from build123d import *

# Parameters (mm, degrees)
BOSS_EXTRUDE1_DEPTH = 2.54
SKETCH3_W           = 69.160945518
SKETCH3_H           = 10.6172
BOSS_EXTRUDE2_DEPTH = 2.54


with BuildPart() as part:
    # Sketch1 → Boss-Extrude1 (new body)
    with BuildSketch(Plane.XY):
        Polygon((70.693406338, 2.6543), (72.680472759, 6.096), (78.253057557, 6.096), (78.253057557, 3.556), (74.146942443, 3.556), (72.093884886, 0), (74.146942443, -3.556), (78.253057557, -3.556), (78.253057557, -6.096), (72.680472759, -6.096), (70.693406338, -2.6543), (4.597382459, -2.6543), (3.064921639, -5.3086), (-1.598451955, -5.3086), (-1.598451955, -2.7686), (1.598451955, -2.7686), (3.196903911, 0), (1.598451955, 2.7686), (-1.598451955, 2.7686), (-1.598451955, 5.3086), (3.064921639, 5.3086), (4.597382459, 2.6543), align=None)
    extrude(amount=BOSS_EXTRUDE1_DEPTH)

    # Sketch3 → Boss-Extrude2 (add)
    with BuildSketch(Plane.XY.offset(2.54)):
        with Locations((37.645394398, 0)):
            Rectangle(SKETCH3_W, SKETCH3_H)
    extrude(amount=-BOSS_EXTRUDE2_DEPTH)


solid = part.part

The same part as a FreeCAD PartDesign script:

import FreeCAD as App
import Part
import Sketcher

V = App.Vector
Q = App.Units.Quantity

doc = App.newDocument("Part")
body = doc.addObject("PartDesign::Body", "Body")

sketch1 = body.newObject("Sketcher::SketchObject", "Sketch")
sketch1.AttachmentSupport = (doc.getObject("XY_Plane"), [""])
sketch1.MapMode = "FlatFace"
sketch1.addGeometry([
    Part.LineSegment(V(72.7, 6.1, 0), V(70.7, 2.7, 0)),
    Part.LineSegment(V(70.7, 2.7, 0), V(4.6, 2.7, 0)),
    Part.LineSegment(V(4.6, 2.7, 0), V(3.1, 5.3, 0)),
    Part.LineSegment(V(3.1, 5.3, 0), V(-1.6, 5.3, 0)),
    Part.LineSegment(V(-1.6, 5.3, 0), V(-1.6, 2.8, 0)),
    Part.LineSegment(V(-1.6, 2.8, 0), V(1.6, 2.8, 0)),
    Part.LineSegment(V(1.6, 2.8, 0), V(3.2, 0, 0)),
    Part.LineSegment(V(3.2, 0, 0), V(1.6, -2.8, 0)),
    Part.LineSegment(V(1.6, -2.8, 0), V(-1.6, -2.8, 0)),
    Part.LineSegment(V(-1.6, -2.8, 0), V(-1.6, -5.3, 0)),
    Part.LineSegment(V(-1.6, -5.3, 0), V(3.1, -5.3, 0)),
    Part.LineSegment(V(3.1, -5.3, 0), V(4.6, -2.7, 0)),
    Part.LineSegment(V(4.6, -2.7, 0), V(70.7, -2.7, 0)),
    Part.LineSegment(V(70.7, -2.7, 0), V(72.7, -6.1, 0)),
    Part.LineSegment(V(72.7, -6.1, 0), V(78.3, -6.1, 0)),
    Part.LineSegment(V(78.3, -6.1, 0), V(78.3, -3.6, 0)),
    Part.LineSegment(V(78.3, -3.6, 0), V(74.1, -3.6, 0)),
    Part.LineSegment(V(74.1, -3.6, 0), V(72.1, 0, 0)),
    Part.LineSegment(V(72.1, 0, 0), V(74.1, 3.6, 0)),
    Part.LineSegment(V(74.1, 3.6, 0), V(78.3, 3.6, 0)),
    Part.LineSegment(V(78.3, 3.6, 0), V(78.3, 6.1, 0)),
    Part.LineSegment(V(78.3, 6.1, 0), V(72.7, 6.1, 0)),
], False)
sketch1.addConstraint([
    Sketcher.Constraint("Coincident", 0, 2, 1, 1),
    Sketcher.Constraint("Coincident", 1, 2, 2, 1),
    Sketcher.Constraint("Coincident", 2, 2, 3, 1),
    Sketcher.Constraint("Coincident", 3, 2, 4, 1),
    Sketcher.Constraint("Coincident", 4, 2, 5, 1),
    Sketcher.Constraint("Coincident", 5, 2, 6, 1),
    Sketcher.Constraint("Coincident", 6, 2, 7, 1),
    Sketcher.Constraint("Coincident", 7, 2, 8, 1),
    Sketcher.Constraint("Coincident", 8, 2, 9, 1),
    Sketcher.Constraint("Coincident", 9, 2, 10, 1),
    Sketcher.Constraint("Coincident", 10, 2, 11, 1),
    Sketcher.Constraint("Coincident", 11, 2, 12, 1),
    Sketcher.Constraint("Coincident", 12, 2, 13, 1),
    Sketcher.Constraint("Coincident", 13, 2, 14, 1),
    Sketcher.Constraint("Coincident", 14, 2, 15, 1),
    Sketcher.Constraint("Coincident", 15, 2, 16, 1),
    Sketcher.Constraint("Coincident", 16, 2, 17, 1),
    Sketcher.Constraint("Coincident", 17, 2, 18, 1),
    Sketcher.Constraint("Coincident", 18, 2, 19, 1),
    Sketcher.Constraint("Coincident", 19, 2, 20, 1),
    Sketcher.Constraint("Coincident", 20, 2, 21, 1),
    Sketcher.Constraint("Coincident", 21, 2, 0, 1),
    Sketcher.Constraint("Horizontal", 1),
    Sketcher.Constraint("Horizontal", 3),
    Sketcher.Constraint("Vertical", 4),
    Sketcher.Constraint("Horizontal", 5),
    Sketcher.Constraint("Horizontal", 8),
    Sketcher.Constraint("Vertical", 9),
    Sketcher.Constraint("Horizontal", 10),
    Sketcher.Constraint("Horizontal", 12),
    Sketcher.Constraint("Horizontal", 14),
    Sketcher.Constraint("Vertical", 15),
    Sketcher.Constraint("Horizontal", 16),
    Sketcher.Constraint("Horizontal", 19),
    Sketcher.Constraint("Vertical", 20),
    Sketcher.Constraint("Horizontal", 21),
    Sketcher.Constraint("Symmetric", 4, 2, 7, 2, -1, 1),
    Sketcher.Constraint("Symmetric", 3, 2, 9, 2, -1),
    Sketcher.Constraint("Symmetric", 1, 2, 11, 2, -1),
    Sketcher.Constraint("Symmetric", 16, 2, 18, 2, -1),
    Sketcher.Constraint("Symmetric", 14, 2, 20, 2, -1),
    Sketcher.Constraint("PointOnObject", 6, 2, -1),
    Sketcher.Constraint("PointOnObject", 17, 2, -1),
    Sketcher.Constraint("Parallel", 2, 6),
    Sketcher.Constraint("Parallel", 0, 7),
    Sketcher.Constraint("Parallel", 7, 11),
    Sketcher.Constraint("Parallel", 6, 13),
    Sketcher.Constraint("Parallel", 13, 17),
    Sketcher.Constraint("Parallel", 11, 18),
    Sketcher.Constraint("Vertical", 0, 2, 12, 2),
    Sketcher.Constraint("Equal", 9, 15),
    Sketcher.Constraint("DistanceY", 4, 2, 4, 1, Q("0.1 in")),
    Sketcher.Constraint("Angle", 0, Q("-120 deg")),
    Sketcher.Constraint("DistanceY", 13, 2, -1, 1, Q("0.24 in")),
    Sketcher.Constraint("DistanceY", -1, 1, 2, 2, Q("0.209 in")),
    Sketcher.Constraint("DistanceY", 11, 2, 1, 2, Q("0.209 in")),
    Sketcher.Constraint("DistanceX", 1, 2, 1, 1, 66.096024),
    Sketcher.Constraint("DistanceX", 3, 2, 3, 1, 4.663374),
    Sketcher.Constraint("DistanceX", 5, 1, 5, 2, 3.196904),
    Sketcher.Constraint("DistanceX", 14, 1, 14, 2, 5.572585),
    Sketcher.Constraint("DistanceX", 16, 2, 16, 1, 4.106115),
])
pad1 = body.newObject("PartDesign::Pad", "Pad")
pad1.Profile = sketch1
pad1.Length = Q("0.1 in")

sketch2 = body.newObject("Sketcher::SketchObject", "Sketch001")
sketch2.AttachmentSupport = (doc.getObject("XY_Plane"), [""])
sketch2.MapMode = "FlatFace"
sketch2.AttachmentOffset = App.Placement(V(0, 0, 0.1 * 25.4), App.Rotation())
sketch2.addGeometry([
    Part.LineSegment(V(3, 5, 0), V(3, -5, 0)),
    Part.LineSegment(V(3, -5, 0), V(72, -5, 0)),
    Part.LineSegment(V(72, -5, 0), V(72, 5, 0)),
    Part.LineSegment(V(72, 5, 0), V(3, 5, 0)),
], False)
sketch2.addConstraint([
    Sketcher.Constraint("Coincident", 0, 2, 1, 1),
    Sketcher.Constraint("Coincident", 1, 2, 2, 1),
    Sketcher.Constraint("Coincident", 2, 2, 3, 1),
    Sketcher.Constraint("Coincident", 3, 2, 0, 1),
    Sketcher.Constraint("Vertical", 0),
    Sketcher.Constraint("Horizontal", 1),
    Sketcher.Constraint("Vertical", 2),
    Sketcher.Constraint("Horizontal", 3),
    Sketcher.Constraint("DistanceY", 0, 2, 0, 1, Q("0.418 in")),
    Sketcher.Constraint("DistanceY", 0, 2, -1, 1, Q("0.209 in")),
    Sketcher.Constraint("DistanceX", 1, 1, 1, 2, 69.160946),
    Sketcher.Constraint("DistanceX", -1, 1, 0, 2, 3.064922),
])
pad2 = body.newObject("PartDesign::Pad", "Pad001")
pad2.Profile = sketch2
pad2.Length = Q("0.1 in")
pad2.Reversed = True

doc.recompute()
